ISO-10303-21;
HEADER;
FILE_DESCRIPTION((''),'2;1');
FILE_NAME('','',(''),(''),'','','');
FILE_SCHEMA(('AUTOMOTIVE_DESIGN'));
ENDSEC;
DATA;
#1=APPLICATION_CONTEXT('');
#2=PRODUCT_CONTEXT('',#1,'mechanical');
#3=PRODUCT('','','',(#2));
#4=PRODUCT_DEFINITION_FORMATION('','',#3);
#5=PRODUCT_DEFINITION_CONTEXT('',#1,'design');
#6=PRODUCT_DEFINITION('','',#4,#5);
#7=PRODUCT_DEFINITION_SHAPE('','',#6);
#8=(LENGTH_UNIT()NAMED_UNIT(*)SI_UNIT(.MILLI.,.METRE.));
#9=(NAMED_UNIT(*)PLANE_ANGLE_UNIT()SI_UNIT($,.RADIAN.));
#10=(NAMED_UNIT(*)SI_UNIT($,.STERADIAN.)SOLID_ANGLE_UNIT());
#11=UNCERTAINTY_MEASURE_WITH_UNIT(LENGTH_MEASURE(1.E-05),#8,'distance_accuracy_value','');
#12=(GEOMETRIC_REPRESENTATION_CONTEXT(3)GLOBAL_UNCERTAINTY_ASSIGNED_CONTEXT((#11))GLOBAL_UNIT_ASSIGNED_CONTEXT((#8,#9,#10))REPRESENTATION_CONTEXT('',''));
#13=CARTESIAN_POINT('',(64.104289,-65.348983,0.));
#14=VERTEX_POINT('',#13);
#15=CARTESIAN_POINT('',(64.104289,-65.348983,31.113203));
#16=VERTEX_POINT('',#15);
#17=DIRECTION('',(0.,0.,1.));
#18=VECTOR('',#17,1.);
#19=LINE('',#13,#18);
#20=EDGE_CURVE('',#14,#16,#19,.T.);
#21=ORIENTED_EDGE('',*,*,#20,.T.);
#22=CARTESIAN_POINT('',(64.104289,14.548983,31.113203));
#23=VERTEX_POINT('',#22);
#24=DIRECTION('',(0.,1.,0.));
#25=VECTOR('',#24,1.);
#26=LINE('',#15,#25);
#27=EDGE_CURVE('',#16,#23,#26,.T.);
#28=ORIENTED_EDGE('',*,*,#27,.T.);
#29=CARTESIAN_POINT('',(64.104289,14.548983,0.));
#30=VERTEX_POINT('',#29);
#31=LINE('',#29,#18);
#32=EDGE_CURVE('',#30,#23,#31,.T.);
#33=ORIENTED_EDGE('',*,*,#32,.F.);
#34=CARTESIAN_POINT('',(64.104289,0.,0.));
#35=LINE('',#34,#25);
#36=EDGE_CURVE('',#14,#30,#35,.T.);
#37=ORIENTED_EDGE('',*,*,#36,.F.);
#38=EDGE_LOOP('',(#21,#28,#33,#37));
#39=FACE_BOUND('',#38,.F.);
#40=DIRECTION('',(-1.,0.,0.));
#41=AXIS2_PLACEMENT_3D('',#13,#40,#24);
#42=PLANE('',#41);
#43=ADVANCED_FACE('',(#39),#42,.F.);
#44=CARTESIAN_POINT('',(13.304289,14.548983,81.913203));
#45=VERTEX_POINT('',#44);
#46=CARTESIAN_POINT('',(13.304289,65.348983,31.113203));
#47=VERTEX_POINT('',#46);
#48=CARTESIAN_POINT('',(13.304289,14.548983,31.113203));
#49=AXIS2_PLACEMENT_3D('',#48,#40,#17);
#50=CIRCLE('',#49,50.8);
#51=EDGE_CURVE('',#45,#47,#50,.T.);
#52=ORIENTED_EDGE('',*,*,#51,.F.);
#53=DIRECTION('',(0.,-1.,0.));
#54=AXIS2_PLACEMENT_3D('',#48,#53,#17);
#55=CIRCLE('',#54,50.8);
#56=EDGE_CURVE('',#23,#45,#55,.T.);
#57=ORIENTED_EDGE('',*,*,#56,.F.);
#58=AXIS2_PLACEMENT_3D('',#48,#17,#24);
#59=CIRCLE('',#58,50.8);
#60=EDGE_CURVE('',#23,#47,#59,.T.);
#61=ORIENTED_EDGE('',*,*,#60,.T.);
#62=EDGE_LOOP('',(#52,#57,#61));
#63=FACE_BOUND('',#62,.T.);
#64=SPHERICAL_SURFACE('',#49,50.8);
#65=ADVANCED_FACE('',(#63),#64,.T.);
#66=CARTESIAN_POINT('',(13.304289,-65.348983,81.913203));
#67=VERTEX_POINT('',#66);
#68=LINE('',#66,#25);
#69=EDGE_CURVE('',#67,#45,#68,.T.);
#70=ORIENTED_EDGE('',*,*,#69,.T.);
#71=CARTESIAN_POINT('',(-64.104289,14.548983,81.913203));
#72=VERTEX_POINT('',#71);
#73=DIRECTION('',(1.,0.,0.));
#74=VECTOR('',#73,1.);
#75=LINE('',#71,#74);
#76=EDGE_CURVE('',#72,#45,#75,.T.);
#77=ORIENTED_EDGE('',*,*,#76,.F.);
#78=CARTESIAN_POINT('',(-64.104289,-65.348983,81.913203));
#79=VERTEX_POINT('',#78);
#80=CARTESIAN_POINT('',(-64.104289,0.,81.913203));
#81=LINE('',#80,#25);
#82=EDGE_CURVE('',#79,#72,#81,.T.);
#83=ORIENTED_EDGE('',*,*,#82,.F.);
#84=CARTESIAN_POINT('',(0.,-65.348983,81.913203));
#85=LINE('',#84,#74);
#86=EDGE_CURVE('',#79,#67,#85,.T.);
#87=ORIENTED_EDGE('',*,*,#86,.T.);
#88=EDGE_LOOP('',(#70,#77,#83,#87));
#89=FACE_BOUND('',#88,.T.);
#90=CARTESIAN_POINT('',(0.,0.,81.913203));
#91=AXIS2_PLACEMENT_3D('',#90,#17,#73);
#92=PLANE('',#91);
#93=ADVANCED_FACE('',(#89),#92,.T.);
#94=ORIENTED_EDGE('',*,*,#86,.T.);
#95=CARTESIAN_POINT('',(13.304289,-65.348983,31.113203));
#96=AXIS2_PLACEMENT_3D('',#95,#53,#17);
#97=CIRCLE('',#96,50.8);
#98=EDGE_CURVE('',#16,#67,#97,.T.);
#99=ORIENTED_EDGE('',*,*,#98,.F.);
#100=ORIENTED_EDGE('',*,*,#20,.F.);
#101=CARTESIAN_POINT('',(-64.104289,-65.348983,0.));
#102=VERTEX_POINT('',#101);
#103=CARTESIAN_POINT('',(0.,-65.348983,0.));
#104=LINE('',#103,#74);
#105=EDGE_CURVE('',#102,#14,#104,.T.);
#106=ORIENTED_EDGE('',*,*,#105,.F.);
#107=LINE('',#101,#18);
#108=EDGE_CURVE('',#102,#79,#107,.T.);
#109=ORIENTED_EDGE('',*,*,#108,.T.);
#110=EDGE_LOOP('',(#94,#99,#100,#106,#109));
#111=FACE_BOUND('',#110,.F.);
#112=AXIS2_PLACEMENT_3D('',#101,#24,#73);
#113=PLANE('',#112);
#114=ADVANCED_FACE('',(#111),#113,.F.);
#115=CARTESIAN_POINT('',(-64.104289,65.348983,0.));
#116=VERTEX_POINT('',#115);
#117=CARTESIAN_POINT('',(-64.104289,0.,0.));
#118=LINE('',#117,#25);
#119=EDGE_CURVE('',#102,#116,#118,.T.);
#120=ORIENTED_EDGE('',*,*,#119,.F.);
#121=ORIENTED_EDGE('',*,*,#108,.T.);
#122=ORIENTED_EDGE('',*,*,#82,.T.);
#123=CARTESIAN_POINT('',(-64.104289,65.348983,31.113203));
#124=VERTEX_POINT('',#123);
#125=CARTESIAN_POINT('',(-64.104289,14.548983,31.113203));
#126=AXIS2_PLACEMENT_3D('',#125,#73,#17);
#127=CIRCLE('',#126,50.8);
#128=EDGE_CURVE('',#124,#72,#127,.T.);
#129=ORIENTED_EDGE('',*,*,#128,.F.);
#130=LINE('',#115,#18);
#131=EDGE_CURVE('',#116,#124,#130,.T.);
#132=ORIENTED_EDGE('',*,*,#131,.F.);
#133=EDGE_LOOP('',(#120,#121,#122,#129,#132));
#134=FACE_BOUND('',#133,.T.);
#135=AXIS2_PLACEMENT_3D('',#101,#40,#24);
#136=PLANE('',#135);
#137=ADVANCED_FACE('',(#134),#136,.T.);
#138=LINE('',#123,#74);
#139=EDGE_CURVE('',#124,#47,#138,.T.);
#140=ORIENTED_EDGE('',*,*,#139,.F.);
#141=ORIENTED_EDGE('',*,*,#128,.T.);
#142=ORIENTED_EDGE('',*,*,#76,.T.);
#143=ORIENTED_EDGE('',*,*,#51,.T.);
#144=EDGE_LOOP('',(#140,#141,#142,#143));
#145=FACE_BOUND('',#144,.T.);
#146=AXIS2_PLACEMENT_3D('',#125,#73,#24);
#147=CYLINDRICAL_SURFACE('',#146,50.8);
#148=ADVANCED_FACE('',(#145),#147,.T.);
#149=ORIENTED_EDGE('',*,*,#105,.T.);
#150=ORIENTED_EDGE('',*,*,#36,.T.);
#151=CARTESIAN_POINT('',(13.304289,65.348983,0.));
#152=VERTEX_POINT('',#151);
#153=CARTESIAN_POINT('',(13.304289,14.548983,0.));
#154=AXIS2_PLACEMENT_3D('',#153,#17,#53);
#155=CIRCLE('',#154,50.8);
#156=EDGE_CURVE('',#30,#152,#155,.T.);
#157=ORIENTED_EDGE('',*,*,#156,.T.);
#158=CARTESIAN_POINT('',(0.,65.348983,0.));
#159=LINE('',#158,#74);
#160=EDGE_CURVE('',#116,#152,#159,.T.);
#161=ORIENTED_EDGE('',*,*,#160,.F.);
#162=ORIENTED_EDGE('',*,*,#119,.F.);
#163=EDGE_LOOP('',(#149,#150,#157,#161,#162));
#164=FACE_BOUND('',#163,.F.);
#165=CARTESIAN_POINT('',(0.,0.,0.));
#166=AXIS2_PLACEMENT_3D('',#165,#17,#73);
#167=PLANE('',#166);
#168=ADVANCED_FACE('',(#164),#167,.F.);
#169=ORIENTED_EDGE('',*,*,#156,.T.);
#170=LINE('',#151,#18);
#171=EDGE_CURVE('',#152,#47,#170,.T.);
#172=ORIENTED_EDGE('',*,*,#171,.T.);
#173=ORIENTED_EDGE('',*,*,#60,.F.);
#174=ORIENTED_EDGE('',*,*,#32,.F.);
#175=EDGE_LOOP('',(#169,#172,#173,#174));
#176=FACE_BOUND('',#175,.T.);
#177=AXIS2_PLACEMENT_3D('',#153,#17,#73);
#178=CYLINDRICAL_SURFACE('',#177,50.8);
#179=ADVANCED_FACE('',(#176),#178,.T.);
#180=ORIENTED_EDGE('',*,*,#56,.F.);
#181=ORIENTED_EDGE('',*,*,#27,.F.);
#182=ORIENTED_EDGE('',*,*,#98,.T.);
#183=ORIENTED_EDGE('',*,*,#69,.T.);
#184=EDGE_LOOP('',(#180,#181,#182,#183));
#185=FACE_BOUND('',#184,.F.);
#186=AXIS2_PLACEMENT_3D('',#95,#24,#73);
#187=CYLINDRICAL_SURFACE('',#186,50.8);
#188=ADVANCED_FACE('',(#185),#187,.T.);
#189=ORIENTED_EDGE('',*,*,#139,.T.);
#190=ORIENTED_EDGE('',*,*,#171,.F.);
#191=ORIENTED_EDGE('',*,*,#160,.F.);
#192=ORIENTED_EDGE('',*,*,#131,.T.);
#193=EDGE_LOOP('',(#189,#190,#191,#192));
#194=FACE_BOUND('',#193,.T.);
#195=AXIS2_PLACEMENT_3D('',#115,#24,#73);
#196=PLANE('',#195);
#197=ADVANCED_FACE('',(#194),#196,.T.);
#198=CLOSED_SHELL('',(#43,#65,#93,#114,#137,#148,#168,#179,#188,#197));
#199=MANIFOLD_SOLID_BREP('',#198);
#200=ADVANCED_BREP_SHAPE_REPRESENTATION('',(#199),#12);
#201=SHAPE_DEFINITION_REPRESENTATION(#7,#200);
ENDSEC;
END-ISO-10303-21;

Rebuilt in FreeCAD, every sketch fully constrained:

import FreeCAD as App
import Part
import Sketcher
from FreeCAD import Vector
Q = App.Units.Quantity


def edges_at(feature, points):
    """Names of the edges that pass closest to the given points."""
    edges = feature.Shape.Edges
    near = lambda p: min(range(len(edges)), key=lambda i: edges[i].distToShape(Part.Vertex(*p))[0])
    return sorted({f"Edge{near(p) + 1}" for p in points})


def add_polygon(sketch, points):
    """Adds a closed chain of lines whose ends are joined by coincident constraints."""
    first, n = sketch.GeometryCount, len(points)
    for a, b in zip(points, points[1:] + points[:1]):
        sketch.addGeometry(Part.LineSegment(App.Vector(*a, 0), App.Vector(*b, 0)), False)
    for i in range(n):
        sketch.addConstraint(Sketcher.Constraint("Coincident", first + i, 2, first + (i + 1) % n, 1))

doc = App.newDocument("Part")
body = doc.addObject("PartDesign::Body", "Body")

sketch1 = doc.addObject("Sketcher::SketchObject", "Sketch")
body.addObject(sketch1)
sketch1.AttachmentSupport = (doc.XY_Plane, [""])
sketch1.MapMode = "FlatFace"
add_polygon(sketch1, [(-64.104289, 65.348983), (-64.104289, -65.348983), (64.104289, -65.348983), (64.104289, 65.348983)])
sketch1.addConstraint([
    Sketcher.Constraint("Vertical", 0),
    Sketcher.Constraint("Horizontal", 1),
    Sketcher.Constraint("Vertical", 2),
    Sketcher.Constraint("Horizontal", 3),
    Sketcher.Constraint("Symmetric", 0, 2, 2, 2, -1, 1),
    Sketcher.Constraint("DistanceX", 1, 1, 1, 2, 128.208578),
    Sketcher.Constraint("DistanceY", 0, 2, 0, 1, 130.697966),
])
pad1 = doc.addObject("PartDesign::Pad", "Pad")
body.addObject(pad1)
pad1.Profile = sketch1
pad1.Length = 81.913203
doc.recompute()

fillet = doc.addObject("PartDesign::Fillet", "Fillet")
body.addObject(fillet)
fillet.Base = (pad1, edges_at(pad1, [(0, 65.349, 81.913), (64.104, 0, 81.913), (64.104, 65.349, 40.957)]))
fillet.Radius = Q("2 in")

doc.recompute()
